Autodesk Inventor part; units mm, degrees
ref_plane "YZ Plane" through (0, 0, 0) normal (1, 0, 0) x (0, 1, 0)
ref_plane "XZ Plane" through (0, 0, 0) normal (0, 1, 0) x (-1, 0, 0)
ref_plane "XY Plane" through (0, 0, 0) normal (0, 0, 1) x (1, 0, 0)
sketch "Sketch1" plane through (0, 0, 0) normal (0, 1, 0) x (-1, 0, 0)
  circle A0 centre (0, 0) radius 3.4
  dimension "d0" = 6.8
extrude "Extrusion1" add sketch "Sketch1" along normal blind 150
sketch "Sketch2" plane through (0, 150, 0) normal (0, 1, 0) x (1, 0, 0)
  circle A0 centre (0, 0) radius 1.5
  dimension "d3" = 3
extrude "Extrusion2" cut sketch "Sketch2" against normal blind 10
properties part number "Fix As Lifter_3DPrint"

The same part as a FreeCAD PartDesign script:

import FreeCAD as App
import Part
import Sketcher

V = App.Vector

doc = App.newDocument("Part")
body = doc.addObject("PartDesign::Body", "Body")

sketch1 = body.newObject("Sketcher::SketchObject", "Sketch")
sketch1.AttachmentSupport = (doc.getObject("XZ_Plane"), [""])
sketch1.MapMode = "FlatFace"
sketch1.addGeometry(Part.Circle(V(0, 0, 0), V(0, 0, 1), 3.4), False)
sketch1.addConstraint(Sketcher.Constraint("Coincident", 0, 3, -1, 1))
sketch1.addConstraint(Sketcher.Constraint("Diameter", 0, 6.8))
pad1 = body.newObject("PartDesign::Pad", "Pad")
pad1.Profile = sketch1
pad1.Length = 150
pad1.Reversed = True

sketch2 = body.newObject("Sketcher::SketchObject", "Sketch001")
sketch2.AttachmentSupport = (doc.getObject("XZ_Plane"), [""])
sketch2.MapMode = "FlatFace"
sketch2.AttachmentOffset = App.Placement(V(0, 0, -150), App.Rotation())
sketch2.addGeometry(Part.Circle(V(0, 0, 0), V(0, 0, 1), 1.5), False)
sketch2.addConstraint(Sketcher.Constraint("Coincident", 0, 3, -1, 1))
sketch2.addConstraint(Sketcher.Constraint("Diameter", 0, 3.0))
pocket1 = body.newObject("PartDesign::Pocket", "Pocket")
pocket1.Profile = sketch2
pocket1.Length = 10
pocket1.Reversed = True

doc.recompute()
